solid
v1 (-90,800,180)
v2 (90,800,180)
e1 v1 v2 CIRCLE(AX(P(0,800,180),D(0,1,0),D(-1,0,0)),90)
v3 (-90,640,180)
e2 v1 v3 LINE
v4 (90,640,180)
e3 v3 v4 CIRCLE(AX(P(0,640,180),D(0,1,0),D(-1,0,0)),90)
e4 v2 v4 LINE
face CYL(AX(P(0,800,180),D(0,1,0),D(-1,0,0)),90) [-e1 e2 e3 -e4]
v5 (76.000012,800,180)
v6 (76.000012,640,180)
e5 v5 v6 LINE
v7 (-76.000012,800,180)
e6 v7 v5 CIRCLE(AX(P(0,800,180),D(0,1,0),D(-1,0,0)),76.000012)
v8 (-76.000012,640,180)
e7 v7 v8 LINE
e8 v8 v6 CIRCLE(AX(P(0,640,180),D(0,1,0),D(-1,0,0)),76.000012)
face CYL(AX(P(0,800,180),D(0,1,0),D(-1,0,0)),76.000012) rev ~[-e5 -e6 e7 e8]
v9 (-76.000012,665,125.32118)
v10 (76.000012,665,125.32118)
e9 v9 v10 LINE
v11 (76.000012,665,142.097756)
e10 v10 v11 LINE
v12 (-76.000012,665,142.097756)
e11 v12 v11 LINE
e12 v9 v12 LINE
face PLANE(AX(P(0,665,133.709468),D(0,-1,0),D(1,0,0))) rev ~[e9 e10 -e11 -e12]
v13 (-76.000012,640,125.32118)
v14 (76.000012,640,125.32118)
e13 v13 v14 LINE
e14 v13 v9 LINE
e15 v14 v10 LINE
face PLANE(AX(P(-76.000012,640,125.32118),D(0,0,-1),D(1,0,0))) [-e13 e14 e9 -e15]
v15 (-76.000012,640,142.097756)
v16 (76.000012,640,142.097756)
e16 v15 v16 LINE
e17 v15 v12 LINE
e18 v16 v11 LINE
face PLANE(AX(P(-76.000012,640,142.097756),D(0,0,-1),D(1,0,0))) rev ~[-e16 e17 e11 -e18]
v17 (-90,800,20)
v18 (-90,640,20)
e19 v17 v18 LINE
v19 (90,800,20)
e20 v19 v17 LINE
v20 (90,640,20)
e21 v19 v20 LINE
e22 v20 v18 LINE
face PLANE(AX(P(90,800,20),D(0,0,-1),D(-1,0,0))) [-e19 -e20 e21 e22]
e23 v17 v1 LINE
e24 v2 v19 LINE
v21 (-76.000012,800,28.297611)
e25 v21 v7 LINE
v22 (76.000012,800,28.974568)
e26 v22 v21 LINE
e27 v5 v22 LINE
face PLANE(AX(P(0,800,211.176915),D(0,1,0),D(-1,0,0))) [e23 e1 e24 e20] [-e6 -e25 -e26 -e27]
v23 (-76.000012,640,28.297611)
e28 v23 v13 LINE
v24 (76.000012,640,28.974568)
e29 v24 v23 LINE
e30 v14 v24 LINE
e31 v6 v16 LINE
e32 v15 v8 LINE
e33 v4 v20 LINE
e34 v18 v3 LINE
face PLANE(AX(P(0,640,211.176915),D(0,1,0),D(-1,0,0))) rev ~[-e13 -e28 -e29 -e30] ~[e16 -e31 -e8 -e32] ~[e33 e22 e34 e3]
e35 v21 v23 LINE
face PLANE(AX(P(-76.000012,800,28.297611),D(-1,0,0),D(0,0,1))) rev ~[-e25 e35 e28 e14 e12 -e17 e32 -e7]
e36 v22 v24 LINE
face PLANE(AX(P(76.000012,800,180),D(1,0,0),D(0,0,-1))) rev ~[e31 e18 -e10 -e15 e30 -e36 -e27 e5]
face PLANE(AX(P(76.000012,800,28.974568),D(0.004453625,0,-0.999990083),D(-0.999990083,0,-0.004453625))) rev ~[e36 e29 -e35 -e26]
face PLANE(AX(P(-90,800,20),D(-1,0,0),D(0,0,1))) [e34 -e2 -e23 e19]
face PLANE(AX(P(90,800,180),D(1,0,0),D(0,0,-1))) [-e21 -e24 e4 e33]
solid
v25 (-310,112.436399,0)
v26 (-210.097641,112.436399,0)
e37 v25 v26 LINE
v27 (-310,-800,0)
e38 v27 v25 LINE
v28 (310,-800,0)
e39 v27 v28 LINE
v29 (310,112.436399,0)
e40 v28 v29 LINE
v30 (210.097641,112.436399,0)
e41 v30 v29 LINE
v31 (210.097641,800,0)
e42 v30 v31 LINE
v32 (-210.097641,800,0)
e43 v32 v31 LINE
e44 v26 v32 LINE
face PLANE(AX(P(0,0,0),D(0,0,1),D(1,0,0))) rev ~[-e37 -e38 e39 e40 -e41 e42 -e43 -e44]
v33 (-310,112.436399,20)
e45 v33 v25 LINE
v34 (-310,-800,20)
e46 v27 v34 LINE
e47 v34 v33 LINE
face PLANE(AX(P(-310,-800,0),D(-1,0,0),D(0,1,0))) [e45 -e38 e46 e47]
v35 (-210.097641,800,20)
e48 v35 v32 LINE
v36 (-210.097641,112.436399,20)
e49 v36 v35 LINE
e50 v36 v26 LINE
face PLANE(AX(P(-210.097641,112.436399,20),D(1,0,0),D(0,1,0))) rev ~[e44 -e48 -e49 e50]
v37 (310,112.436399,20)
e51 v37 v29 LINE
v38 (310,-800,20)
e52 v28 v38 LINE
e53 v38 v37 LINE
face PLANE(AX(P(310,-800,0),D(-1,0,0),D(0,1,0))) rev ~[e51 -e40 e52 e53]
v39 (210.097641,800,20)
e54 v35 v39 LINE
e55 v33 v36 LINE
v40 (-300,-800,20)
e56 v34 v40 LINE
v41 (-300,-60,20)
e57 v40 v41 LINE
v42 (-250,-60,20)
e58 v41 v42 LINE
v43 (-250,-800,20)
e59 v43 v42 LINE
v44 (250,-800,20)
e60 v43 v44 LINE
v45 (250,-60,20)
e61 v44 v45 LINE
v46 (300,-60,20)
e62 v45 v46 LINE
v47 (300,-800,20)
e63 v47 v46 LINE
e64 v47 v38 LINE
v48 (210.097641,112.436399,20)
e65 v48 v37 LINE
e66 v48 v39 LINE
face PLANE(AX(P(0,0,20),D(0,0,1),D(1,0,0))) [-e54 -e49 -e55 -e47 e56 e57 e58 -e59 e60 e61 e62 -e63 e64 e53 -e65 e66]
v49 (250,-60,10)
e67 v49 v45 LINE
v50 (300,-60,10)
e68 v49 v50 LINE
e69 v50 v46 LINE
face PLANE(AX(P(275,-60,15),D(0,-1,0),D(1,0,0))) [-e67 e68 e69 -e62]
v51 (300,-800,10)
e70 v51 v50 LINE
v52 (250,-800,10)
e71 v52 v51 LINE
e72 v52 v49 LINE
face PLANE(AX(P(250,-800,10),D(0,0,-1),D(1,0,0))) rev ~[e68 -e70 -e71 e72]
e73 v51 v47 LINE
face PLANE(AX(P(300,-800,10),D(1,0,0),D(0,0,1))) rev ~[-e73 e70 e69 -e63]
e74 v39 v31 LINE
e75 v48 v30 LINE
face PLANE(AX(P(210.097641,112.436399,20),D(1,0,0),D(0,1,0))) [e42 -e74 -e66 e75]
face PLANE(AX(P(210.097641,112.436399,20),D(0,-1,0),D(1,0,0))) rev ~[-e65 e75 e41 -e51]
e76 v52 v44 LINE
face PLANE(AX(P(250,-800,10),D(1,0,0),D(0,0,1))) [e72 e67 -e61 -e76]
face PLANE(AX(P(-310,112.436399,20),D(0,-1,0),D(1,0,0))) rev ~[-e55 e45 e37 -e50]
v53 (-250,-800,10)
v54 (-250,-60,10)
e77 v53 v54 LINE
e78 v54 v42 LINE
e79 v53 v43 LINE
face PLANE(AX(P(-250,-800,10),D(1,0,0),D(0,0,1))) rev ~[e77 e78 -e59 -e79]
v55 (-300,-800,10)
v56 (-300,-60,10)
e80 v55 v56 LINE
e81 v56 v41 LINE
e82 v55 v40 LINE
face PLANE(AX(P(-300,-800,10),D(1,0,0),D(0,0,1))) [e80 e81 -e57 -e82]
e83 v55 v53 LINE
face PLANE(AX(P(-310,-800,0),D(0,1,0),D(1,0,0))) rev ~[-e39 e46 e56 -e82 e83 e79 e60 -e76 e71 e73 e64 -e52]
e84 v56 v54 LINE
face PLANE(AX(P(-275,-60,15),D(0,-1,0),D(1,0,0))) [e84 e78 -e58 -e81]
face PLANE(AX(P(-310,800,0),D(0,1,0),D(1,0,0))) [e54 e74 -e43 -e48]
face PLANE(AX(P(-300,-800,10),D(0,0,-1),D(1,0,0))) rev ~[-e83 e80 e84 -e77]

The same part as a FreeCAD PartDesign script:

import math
import FreeCAD as App
import Part
import Sketcher

V = App.Vector

doc = App.newDocument("Part")
body = doc.addObject("PartDesign::Body", "Body")

sketch1 = body.newObject("Sketcher::SketchObject", "Sketch")
sketch1.AttachmentSupport = (doc.getObject("XY_Plane"), [""])
sketch1.MapMode = "FlatFace"
sketch1.addGeometry([
    Part.LineSegment(V(-310, 800, 0), V(-310, -800, 0)),
    Part.LineSegment(V(-310, -800, 0), V(310, -800, 0)),
    Part.LineSegment(V(310, -800, 0), V(310, 800, 0)),
    Part.LineSegment(V(310, 800, 0), V(-310, 800, 0)),
], False)
sketch1.addConstraint([
    Sketcher.Constraint("Coincident", 0, 2, 1, 1),
    Sketcher.Constraint("Coincident", 1, 2, 2, 1),
    Sketcher.Constraint("Coincident", 2, 2, 3, 1),
    Sketcher.Constraint("Coincident", 3, 2, 0, 1),
    Sketcher.Constraint("Vertical", 0),
    Sketcher.Constraint("Horizontal", 1),
    Sketcher.Constraint("Vertical", 2),
    Sketcher.Constraint("Horizontal", 3),
    Sketcher.Constraint("Symmetric", 0, 2, 2, 2, -1, 1),
    Sketcher.Constraint("DistanceX", 1, 1, 1, 2, 620.0),
    Sketcher.Constraint("DistanceY", 0, 2, 0, 1, 1600.0),
])
pad1 = body.newObject("PartDesign::Pad", "Pad")
pad1.Profile = sketch1
pad1.Length = 20

sketch2 = body.newObject("Sketcher::SketchObject", "Sketch001")
sketch2.AttachmentSupport = (doc.getObject("XZ_Plane"), [""])
sketch2.MapMode = "FlatFace"
sketch2.AttachmentOffset = App.Placement(V(0, 0, 800), App.Rotation())
sketch2.addGeometry([
    Part.LineSegment(V(-300, 20, 0), V(-300, 10, 0)),
    Part.LineSegment(V(-300, 10, 0), V(-250, 10, 0)),
    Part.LineSegment(V(-250, 10, 0), V(-250, 20, 0)),
    Part.LineSegment(V(-250, 20, 0), V(-300, 20, 0)),
    Part.LineSegment(V(250, 20, 0), V(250, 10, 0)),
    Part.LineSegment(V(250, 10, 0), V(300, 10, 0)),
    Part.LineSegment(V(300, 10, 0), V(300, 20, 0)),
    Part.LineSegment(V(300, 20, 0), V(250, 20, 0)),
], False)
sketch2.addConstraint([
    Sketcher.Constraint("Coincident", 0, 2, 1, 1),
    Sketcher.Constraint("Coincident", 1, 2, 2, 1),
    Sketcher.Constraint("Coincident", 2, 2, 3, 1),
    Sketcher.Constraint("Coincident", 3, 2, 0, 1),
    Sketcher.Constraint("Coincident", 4, 2, 5, 1),
    Sketcher.Constraint("Coincident", 5, 2, 6, 1),
    Sketcher.Constraint("Coincident", 6, 2, 7, 1),
    Sketcher.Constraint("Coincident", 7, 2, 4, 1),
    Sketcher.Constraint("Vertical", 0),
    Sketcher.Constraint("Horizontal", 1),
    Sketcher.Constraint("Vertical", 2),
    Sketcher.Constraint("Horizontal", 3),
    Sketcher.Constraint("Vertical", 4),
    Sketcher.Constraint("Horizontal", 5),
    Sketcher.Constraint("Vertical", 6),
    Sketcher.Constraint("Horizontal", 7),
    Sketcher.Constraint("Symmetric", 1, 2, 4, 2, -2),
    Sketcher.Constraint("Symmetric", 3, 2, 6, 2, -2),
    Sketcher.Constraint("DistanceX", 1, 1, 1, 2, 50.0),
    Sketcher.Constraint("DistanceY", 0, 2, 0, 1, 10.0),
    Sketcher.Constraint("DistanceX", 0, 2, -1, 1, 300.0),
    Sketcher.Constraint("DistanceY", -1, 1, 0, 2, 10.0),
])
pocket1 = body.newObject("PartDesign::Pocket", "Pocket")
pocket1.Profile = sketch2
pocket1.Length = 740

sketch3 = body.newObject("Sketcher::SketchObject", "Sketch002")
sketch3.AttachmentSupport = (doc.getObject("XY_Plane"), [""])
sketch3.MapMode = "FlatFace"
sketch3.AttachmentOffset = App.Placement(V(0, 0, 20), App.Rotation())
sketch3.addGeometry([
    Part.LineSegment(V(-310, 800, 0), V(-310, 112, 0)),
    Part.LineSegment(V(-310, 112, 0), V(-210, 112, 0)),
    Part.LineSegment(V(-210, 112, 0), V(-210, 800, 0)),
    Part.LineSegment(V(-210, 800, 0), V(-310, 800, 0)),
    Part.LineSegment(V(210, 800, 0), V(210, 112, 0)),
    Part.LineSegment(V(210, 112, 0), V(310, 112, 0)),
    Part.LineSegment(V(310, 112, 0), V(310, 800, 0)),
    Part.LineSegment(V(310, 800, 0), V(210, 800, 0)),
], False)
sketch3.addConstraint([
    Sketcher.Constraint("Coincident", 0, 2, 1, 1),
    Sketcher.Constraint("Coincident", 1, 2, 2, 1),
    Sketcher.Constraint("Coincident", 2, 2, 3, 1),
    Sketcher.Constraint("Coincident", 3, 2, 0, 1),
    Sketcher.Constraint("Coincident", 4, 2, 5, 1),
    Sketcher.Constraint("Coincident", 5, 2, 6, 1),
    Sketcher.Constraint("Coincident", 6, 2, 7, 1),
    Sketcher.Constraint("Coincident", 7, 2, 4, 1),
    Sketcher.Constraint("Vertical", 0),
    Sketcher.Constraint("Horizontal", 1),
    Sketcher.Constraint("Vertical", 2),
    Sketcher.Constraint("Horizontal", 3),
    Sketcher.Constraint("Vertical", 4),
    Sketcher.Constraint("Horizontal", 5),
    Sketcher.Constraint("Vertical", 6),
    Sketcher.Constraint("Horizontal", 7),
    Sketcher.Constraint("Symmetric", 1, 2, 4, 2, -2),
    Sketcher.Constraint("Symmetric", 3, 2, 6, 2, -2),
    Sketcher.Constraint("DistanceX", 0, 2, -1, 1, 310.0),
    Sketcher.Constraint("DistanceY", -1, 1, 2, 2, 800.0),
    Sketcher.Constraint("DistanceY", 0, 2, 0, 1, 687.563601),
    Sketcher.Constraint("DistanceX", 1, 1, 1, 2, 99.902359),
])
pocket2 = body.newObject("PartDesign::Pocket", "Pocket001")
pocket2.Profile = sketch3
pocket2.Type = "ThroughAll"
body2 = doc.addObject("PartDesign::Body", "Body001")

sketch4 = body2.newObject("Sketcher::SketchObject", "Sketch003")
sketch4.AttachmentSupport = (doc.getObject("XZ_Plane001"), [""])
sketch4.MapMode = "FlatFace"
sketch4.AttachmentOffset = App.Placement(V(0, 0, -800), App.Rotation())
sketch4.addGeometry([
    Part.ArcOfCircle(Part.Circle(V(0, 180, 0), V(0, 0, 1), 90), math.radians(0), math.radians(180)),
    Part.LineSegment(V(90, 180, 0), V(90, 20, 0)),
    Part.LineSegment(V(90, 20, 0), V(-90, 20, 0)),
    Part.LineSegment(V(-90, 20, 0), V(-90, 180, 0)),
], False)
sketch4.addConstraint([
    Sketcher.Constraint("Tangent", 0, 1, 1, 1),
    Sketcher.Constraint("Coincident", 1, 2, 2, 1),
    Sketcher.Constraint("Coincident", 2, 2, 3, 1),
    Sketcher.Constraint("Tangent", 3, 2, 0, 2),
    Sketcher.Constraint("Vertical", 1),
    Sketcher.Constraint("Horizontal", 2),
    Sketcher.Constraint("Vertical", 3),
    Sketcher.Constraint("PointOnObject", 0, 3, -2),
    Sketcher.Constraint("Radius", 0, 90.0),
    Sketcher.Constraint("DistanceY", 1, 2, 1, 1, 160.0),
    Sketcher.Constraint("DistanceY", -1, 1, 0, 3, 180.0),
])
pad2 = body2.newObject("PartDesign::Pad", "Pad001")
pad2.Profile = sketch4
pad2.Length = 160

sketch5 = body2.newObject("Sketcher::SketchObject", "Sketch004")
sketch5.AttachmentSupport = (doc.getObject("XZ_Plane001"), [""])
sketch5.MapMode = "FlatFace"
sketch5.AttachmentOffset = App.Placement(V(0, 0, -800), App.Rotation())
sketch5.addGeometry([
    Part.LineSegment(V(76, 180, 0), V(76, 29, 0)),
    Part.LineSegment(V(76, 29, 0), V(-76, 28, 0)),
    Part.LineSegment(V(-76, 28, 0), V(-76, 180, 0)),
    Part.ArcOfCircle(Part.Circle(V(0, 180, 0), V(0, 0, 1), 76), math.radians(0), math.radians(180)),
], False)
sketch5.addConstraint([
    Sketcher.Constraint("Coincident", 0, 2, 1, 1),
    Sketcher.Constraint("Coincident", 1, 2, 2, 1),
    Sketcher.Constraint("Tangent", 2, 2, 3, 2),
    Sketcher.Constraint("Tangent", 3, 1, 0, 1),
    Sketcher.Constraint("Vertical", 0),
    Sketcher.Constraint("Vertical", 2),
    Sketcher.Constraint("PointOnObject", 3, 3, -2),
    Sketcher.Constraint("DistanceY", -1, 1, 3, 3, 180.0),
    Sketcher.Constraint("Radius", 3, 76.000012),
    Sketcher.Constraint("DistanceY", 0, 2, 0, 1, 151.025432),
    Sketcher.Constraint("DistanceY", 2, 1, 2, 2, 151.702389),
])
pocket3 = body2.newObject("PartDesign::Pocket", "Pocket002")
pocket3.Profile = sketch5
pocket3.Type = "ThroughAll"
pocket3.Reversed = True

sketch6 = body2.newObject("Sketcher::SketchObject", "Sketch005")
sketch6.AttachmentSupport = (doc.getObject("XZ_Plane001"), [""])
sketch6.MapMode = "FlatFace"
sketch6.AttachmentOffset = App.Placement(V(0, 0, -640), App.Rotation())
sketch6.addGeometry([
    Part.LineSegment(V(-76, 142, 0), V(-76, 125, 0)),
    Part.LineSegment(V(-76, 125, 0), V(76, 125, 0)),
    Part.LineSegment(V(76, 125, 0), V(76, 142, 0)),
    Part.LineSegment(V(76, 142, 0), V(-76, 142, 0)),
], False)
sketch6.addConstraint([
    Sketcher.Constraint("Coincident", 0, 2, 1, 1),
    Sketcher.Constraint("Coincident", 1, 2, 2, 1),
    Sketcher.Constraint("Coincident", 2, 2, 3, 1),
    Sketcher.Constraint("Coincident", 3, 2, 0, 1),
    Sketcher.Constraint("Vertical", 0),
    Sketcher.Constraint("Horizontal", 1),
    Sketcher.Constraint("Vertical", 2),
    Sketcher.Constraint("Horizontal", 3),
    Sketcher.Constraint("DistanceX", 1, 1, 1, 2, 152.000024),
    Sketcher.Constraint("DistanceY", 0, 2, 0, 1, 16.776577),
    Sketcher.Constraint("DistanceY", -1, 1, 0, 2, 125.32118),
    Sketcher.Constraint("DistanceX", 0, 2, -1, 1, 76.000012),
])
pad3 = body2.newObject("PartDesign::Pad", "Pad002")
pad3.Profile = sketch6
pad3.Length = 25
pad3.Reversed = True

doc.recompute()
